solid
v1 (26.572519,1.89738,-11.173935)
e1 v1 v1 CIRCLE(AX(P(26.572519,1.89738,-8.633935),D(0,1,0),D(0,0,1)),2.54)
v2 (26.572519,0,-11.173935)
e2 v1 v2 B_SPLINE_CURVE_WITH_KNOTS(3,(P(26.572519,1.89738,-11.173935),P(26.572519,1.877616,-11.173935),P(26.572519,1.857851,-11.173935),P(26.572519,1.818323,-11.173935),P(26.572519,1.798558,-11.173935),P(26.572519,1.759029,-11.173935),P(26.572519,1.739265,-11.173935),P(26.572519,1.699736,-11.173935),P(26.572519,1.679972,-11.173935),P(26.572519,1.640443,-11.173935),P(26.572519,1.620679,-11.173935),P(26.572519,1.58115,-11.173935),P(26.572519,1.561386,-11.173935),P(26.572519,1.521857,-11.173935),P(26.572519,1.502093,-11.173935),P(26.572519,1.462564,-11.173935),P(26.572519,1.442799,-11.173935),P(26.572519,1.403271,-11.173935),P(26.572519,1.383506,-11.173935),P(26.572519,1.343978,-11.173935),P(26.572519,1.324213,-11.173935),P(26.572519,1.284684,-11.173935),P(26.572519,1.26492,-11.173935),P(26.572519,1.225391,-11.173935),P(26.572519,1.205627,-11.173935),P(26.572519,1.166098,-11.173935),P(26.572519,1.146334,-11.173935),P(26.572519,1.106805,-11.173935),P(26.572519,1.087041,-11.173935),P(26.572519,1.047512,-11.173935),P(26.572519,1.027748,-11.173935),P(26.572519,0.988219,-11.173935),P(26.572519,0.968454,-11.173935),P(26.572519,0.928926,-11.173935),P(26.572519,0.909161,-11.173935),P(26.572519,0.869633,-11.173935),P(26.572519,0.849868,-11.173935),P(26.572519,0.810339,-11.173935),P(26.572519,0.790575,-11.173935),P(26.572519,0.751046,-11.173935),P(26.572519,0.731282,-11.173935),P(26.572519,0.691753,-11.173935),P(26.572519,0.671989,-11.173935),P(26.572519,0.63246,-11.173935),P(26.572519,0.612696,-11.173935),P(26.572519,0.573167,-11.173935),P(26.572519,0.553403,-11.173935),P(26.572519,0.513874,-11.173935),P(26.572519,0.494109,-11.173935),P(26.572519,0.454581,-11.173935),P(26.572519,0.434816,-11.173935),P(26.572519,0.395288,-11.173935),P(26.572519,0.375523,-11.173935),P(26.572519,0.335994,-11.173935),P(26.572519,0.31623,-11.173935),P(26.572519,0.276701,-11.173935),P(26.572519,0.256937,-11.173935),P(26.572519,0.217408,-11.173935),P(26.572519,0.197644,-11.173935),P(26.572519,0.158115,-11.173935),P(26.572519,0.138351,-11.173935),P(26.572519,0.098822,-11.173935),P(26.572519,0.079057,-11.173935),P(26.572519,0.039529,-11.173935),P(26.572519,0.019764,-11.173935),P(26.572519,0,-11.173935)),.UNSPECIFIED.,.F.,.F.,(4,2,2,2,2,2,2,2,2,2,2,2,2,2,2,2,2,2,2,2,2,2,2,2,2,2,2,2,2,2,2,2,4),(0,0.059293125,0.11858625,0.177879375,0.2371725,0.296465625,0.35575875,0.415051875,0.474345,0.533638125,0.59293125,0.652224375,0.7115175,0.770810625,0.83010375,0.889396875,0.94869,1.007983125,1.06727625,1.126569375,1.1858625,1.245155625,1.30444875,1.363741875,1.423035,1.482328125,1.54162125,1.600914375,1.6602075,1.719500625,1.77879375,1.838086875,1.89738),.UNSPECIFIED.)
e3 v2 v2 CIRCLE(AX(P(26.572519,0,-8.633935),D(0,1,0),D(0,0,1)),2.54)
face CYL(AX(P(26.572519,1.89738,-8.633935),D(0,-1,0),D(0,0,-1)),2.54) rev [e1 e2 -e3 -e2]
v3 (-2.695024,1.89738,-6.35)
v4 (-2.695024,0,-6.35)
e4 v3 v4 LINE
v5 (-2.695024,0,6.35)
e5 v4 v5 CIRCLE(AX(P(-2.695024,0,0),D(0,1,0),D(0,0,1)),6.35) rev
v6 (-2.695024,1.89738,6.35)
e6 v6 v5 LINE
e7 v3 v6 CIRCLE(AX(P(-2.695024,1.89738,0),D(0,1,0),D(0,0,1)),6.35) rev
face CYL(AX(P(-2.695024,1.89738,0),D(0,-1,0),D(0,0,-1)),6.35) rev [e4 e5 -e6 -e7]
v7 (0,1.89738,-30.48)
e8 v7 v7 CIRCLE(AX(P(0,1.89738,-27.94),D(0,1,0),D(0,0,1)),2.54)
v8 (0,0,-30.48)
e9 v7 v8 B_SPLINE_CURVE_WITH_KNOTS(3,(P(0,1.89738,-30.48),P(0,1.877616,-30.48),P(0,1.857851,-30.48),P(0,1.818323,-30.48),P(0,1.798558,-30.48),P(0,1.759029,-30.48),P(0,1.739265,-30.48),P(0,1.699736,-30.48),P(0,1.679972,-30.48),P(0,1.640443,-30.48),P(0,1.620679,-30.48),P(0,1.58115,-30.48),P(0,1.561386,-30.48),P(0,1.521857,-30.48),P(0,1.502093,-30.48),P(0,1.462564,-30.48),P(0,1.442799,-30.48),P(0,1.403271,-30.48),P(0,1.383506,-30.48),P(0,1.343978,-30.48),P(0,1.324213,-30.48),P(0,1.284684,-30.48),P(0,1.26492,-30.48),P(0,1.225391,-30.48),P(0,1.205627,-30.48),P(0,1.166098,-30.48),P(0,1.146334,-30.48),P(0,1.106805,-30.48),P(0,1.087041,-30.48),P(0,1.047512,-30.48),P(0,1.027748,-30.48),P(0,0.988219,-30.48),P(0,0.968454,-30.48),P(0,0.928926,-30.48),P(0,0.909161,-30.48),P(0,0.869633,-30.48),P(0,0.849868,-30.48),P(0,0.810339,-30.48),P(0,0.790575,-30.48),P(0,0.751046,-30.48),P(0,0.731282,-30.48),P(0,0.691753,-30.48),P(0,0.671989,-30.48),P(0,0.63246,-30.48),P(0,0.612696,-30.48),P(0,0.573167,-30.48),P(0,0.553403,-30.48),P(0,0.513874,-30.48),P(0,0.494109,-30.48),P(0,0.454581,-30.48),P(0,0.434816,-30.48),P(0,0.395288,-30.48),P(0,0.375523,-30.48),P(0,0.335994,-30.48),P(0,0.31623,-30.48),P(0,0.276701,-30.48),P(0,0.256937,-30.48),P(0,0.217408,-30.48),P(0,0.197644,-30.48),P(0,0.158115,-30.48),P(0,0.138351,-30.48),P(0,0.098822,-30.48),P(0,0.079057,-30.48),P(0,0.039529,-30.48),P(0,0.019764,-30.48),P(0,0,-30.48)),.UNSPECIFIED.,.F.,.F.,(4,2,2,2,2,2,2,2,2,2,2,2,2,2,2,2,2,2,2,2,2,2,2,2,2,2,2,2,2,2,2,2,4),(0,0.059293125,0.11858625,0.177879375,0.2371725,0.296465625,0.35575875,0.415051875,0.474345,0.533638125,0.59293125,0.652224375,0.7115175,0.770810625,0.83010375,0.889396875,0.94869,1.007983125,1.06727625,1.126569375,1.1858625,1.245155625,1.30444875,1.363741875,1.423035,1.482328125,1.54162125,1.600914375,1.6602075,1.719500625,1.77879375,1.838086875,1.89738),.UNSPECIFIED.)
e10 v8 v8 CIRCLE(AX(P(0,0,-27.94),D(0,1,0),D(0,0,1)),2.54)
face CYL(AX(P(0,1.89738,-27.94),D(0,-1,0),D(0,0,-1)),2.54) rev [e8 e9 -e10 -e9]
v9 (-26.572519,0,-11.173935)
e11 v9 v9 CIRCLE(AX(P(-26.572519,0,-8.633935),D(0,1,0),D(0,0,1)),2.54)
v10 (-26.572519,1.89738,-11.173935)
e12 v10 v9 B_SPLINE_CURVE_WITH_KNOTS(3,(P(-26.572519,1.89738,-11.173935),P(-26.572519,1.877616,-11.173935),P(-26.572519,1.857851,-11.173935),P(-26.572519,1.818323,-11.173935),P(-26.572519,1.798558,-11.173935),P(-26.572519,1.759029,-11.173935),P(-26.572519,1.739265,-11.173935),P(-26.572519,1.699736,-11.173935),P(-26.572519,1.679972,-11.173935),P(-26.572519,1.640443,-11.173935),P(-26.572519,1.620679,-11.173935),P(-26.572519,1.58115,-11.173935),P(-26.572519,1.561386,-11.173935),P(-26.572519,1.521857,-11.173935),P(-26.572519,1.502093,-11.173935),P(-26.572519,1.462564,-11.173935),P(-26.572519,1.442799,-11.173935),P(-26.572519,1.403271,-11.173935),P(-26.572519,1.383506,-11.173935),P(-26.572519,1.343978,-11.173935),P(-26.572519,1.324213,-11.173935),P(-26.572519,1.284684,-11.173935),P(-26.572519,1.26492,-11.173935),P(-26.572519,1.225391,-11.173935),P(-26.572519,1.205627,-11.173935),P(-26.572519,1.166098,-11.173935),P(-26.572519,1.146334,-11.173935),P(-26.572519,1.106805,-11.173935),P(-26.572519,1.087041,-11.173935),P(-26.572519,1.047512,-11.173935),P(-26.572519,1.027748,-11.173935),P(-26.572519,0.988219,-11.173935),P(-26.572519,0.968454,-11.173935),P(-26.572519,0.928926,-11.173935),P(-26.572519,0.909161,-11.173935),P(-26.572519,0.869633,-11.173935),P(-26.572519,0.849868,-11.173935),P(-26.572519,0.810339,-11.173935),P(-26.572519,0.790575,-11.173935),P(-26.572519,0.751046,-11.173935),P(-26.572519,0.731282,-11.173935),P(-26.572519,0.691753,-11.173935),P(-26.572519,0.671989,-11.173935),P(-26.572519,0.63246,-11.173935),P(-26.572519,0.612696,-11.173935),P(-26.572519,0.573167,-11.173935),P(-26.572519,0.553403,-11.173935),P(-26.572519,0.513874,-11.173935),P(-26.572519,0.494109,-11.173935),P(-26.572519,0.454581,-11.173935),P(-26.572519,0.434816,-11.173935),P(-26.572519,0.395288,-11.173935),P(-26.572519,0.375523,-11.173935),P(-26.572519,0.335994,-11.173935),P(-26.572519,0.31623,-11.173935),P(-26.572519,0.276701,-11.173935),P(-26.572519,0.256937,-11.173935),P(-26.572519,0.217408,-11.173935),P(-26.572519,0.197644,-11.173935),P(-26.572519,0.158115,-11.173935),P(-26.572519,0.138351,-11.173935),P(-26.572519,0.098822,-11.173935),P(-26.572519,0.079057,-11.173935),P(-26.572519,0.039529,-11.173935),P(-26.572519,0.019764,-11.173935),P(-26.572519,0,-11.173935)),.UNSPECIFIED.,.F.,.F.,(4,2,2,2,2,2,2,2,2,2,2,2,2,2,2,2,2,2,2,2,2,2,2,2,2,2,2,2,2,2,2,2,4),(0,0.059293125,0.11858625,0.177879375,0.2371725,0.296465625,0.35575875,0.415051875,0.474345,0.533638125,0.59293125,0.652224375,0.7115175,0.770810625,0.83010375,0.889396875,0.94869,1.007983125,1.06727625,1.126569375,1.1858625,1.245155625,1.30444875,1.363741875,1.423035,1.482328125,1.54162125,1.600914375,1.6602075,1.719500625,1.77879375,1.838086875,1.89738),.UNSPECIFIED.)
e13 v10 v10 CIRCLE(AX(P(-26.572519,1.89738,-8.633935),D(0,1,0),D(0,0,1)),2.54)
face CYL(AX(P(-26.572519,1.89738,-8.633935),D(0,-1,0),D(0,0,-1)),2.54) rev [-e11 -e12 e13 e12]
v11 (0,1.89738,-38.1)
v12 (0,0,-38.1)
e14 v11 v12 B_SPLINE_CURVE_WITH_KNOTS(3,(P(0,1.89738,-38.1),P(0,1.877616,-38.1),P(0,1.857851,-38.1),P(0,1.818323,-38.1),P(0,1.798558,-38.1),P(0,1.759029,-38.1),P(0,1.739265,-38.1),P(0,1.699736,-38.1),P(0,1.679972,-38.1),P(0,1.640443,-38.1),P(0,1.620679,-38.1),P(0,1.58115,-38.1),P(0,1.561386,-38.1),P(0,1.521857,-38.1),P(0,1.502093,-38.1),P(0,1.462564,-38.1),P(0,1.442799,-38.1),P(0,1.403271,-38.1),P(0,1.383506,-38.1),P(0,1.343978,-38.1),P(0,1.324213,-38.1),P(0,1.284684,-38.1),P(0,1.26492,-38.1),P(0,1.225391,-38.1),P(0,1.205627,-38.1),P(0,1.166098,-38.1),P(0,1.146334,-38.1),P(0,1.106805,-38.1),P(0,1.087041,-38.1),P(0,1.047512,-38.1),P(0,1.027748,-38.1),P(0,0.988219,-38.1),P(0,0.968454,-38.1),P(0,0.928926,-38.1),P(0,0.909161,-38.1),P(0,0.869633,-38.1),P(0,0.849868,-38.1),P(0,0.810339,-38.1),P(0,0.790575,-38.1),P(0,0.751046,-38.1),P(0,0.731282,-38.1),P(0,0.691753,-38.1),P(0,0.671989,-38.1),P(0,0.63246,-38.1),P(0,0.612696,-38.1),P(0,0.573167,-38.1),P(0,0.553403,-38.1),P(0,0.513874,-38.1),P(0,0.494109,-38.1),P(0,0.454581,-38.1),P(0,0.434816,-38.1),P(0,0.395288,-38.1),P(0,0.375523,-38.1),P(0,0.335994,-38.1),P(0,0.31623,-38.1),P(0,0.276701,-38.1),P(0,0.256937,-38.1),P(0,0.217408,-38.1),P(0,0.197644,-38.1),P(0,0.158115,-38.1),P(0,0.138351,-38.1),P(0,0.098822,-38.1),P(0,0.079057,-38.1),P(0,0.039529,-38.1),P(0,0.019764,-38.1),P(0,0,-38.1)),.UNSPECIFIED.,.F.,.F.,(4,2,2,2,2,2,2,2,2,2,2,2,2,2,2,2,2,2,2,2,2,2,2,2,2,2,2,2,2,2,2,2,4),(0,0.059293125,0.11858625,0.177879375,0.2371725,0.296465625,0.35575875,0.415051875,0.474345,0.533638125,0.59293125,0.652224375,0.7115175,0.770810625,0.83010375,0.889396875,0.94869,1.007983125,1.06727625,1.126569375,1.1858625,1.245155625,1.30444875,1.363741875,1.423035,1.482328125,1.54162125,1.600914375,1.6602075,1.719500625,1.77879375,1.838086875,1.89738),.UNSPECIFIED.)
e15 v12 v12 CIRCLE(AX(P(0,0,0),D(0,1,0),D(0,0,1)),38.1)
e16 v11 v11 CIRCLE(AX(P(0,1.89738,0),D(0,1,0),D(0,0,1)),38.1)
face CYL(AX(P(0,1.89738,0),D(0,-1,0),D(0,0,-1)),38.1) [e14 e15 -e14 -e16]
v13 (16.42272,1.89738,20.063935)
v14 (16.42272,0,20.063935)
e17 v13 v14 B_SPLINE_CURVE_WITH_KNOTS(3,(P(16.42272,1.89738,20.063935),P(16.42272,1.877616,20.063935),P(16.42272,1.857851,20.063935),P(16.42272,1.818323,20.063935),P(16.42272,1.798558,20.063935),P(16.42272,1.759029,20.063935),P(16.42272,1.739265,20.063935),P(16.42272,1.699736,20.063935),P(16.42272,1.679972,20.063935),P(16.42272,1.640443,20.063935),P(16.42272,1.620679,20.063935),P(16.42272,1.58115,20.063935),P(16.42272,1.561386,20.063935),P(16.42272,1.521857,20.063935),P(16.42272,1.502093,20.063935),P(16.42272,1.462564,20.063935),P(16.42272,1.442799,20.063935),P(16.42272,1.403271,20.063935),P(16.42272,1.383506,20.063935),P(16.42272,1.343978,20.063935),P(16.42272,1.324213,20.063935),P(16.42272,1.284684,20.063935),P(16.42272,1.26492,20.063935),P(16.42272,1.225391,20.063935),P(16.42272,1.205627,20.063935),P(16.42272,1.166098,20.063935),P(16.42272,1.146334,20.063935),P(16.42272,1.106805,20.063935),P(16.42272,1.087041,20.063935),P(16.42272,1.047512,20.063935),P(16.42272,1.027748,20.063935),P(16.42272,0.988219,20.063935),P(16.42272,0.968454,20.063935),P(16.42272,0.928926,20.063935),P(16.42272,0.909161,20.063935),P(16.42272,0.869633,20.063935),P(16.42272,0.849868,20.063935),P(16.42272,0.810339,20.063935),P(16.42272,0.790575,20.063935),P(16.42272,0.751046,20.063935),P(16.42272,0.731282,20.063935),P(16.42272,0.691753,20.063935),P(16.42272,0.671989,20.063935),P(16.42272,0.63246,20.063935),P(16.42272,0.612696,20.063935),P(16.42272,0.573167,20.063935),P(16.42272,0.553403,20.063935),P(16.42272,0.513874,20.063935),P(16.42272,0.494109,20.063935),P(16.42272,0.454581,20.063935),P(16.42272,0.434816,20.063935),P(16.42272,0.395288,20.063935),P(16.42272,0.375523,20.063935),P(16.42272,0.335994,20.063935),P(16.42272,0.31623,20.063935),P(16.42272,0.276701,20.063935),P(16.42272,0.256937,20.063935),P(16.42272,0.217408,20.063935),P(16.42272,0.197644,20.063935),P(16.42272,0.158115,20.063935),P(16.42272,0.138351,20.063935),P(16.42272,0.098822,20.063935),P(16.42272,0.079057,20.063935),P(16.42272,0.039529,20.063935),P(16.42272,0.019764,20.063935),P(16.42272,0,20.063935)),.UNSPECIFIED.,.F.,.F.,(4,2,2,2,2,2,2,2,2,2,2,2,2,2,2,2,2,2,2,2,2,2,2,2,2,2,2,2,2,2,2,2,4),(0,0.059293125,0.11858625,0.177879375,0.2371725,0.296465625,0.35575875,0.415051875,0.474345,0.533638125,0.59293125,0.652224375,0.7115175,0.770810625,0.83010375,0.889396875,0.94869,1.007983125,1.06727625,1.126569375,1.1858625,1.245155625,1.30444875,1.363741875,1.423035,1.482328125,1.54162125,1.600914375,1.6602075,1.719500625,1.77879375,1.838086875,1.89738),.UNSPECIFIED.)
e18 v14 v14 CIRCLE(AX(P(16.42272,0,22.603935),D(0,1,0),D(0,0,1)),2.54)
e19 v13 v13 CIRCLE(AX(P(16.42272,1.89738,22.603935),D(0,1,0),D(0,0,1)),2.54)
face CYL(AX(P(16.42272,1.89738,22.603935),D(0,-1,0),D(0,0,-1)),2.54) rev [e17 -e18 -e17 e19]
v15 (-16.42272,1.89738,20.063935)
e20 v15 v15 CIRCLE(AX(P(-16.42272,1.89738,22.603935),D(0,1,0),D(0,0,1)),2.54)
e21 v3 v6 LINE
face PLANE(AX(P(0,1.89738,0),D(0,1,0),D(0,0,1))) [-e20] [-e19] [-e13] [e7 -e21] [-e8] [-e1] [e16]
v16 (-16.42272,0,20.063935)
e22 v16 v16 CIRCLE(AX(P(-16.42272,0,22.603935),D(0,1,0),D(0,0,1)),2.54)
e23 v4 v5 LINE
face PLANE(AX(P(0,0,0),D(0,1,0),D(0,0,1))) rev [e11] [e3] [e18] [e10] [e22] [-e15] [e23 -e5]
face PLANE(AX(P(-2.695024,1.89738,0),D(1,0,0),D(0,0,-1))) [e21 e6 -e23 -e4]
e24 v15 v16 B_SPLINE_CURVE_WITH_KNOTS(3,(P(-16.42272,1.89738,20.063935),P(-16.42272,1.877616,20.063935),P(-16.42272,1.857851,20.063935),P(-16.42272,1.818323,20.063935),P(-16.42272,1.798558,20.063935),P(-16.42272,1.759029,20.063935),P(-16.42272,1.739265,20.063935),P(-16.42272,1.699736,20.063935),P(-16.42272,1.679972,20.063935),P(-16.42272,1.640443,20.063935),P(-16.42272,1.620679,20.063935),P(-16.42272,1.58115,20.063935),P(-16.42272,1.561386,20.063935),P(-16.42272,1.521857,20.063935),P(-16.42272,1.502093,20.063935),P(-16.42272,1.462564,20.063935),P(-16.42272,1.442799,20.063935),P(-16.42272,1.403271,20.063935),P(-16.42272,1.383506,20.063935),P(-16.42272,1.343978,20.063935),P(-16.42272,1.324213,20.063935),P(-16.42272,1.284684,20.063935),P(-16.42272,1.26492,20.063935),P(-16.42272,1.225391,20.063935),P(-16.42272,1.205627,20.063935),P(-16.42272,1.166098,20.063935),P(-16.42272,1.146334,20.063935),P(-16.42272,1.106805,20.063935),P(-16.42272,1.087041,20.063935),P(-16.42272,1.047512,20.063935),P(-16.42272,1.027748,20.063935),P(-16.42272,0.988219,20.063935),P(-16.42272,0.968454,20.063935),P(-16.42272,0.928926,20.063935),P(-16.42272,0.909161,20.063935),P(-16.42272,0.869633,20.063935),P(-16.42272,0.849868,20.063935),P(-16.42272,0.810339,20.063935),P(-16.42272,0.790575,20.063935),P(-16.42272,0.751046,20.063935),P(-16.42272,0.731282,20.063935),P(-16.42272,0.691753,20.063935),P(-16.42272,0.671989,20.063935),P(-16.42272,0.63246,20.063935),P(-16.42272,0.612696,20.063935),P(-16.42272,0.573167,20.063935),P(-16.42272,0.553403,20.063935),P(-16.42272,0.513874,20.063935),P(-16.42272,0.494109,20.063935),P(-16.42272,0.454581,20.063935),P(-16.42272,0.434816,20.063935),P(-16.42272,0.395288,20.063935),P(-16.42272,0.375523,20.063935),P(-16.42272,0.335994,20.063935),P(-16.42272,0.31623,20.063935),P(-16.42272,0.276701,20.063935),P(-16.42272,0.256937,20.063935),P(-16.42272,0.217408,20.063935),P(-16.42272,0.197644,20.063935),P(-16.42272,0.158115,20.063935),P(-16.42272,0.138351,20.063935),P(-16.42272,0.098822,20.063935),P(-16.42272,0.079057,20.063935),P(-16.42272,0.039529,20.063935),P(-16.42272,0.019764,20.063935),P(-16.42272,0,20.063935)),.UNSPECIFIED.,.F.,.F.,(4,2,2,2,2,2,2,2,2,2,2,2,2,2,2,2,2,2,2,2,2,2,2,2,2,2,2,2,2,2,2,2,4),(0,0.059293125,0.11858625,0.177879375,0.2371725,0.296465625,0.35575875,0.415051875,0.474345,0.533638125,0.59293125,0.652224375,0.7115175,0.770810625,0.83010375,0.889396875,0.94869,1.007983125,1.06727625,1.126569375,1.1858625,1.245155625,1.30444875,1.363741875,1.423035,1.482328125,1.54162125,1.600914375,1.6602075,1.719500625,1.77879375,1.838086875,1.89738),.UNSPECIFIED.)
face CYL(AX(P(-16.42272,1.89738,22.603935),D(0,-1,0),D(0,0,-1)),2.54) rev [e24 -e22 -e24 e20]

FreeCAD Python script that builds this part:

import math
import FreeCAD as App
import Part
import Sketcher
from FreeCAD import Vector
Q = App.Units.Quantity

doc = App.newDocument("Part")
params = doc.addObject("Spreadsheet::Sheet", "Params")
for row, (alias, value) in enumerate([
    ("sketch1_diameter", "3 in"),
    ("sketch1_diameter2", "0.2 in"),
    ("sketch1_radius", "0.25 in"),
    ("pad1_length", "0.0747 in"),
], start=1):
    params.set(f"A{row}", alias)
    params.set(f"B{row}", "=" + value)
    params.setAlias(f"B{row}", alias)

body = doc.addObject("PartDesign::Body", "Body")

# Sketch on XZ plane
sketch1 = body.newObject("Sketcher::SketchObject", "Sketch")
sketch1.AttachmentSupport = (doc.getObject("XZ_Plane"), [""])
sketch1.MapMode = "FlatFace"
sketch1.addGeometry(Part.Circle(Vector(0, 0, 0), Vector(0, 0, 1), 38.1), False)
sketch1.addGeometry(Part.Circle(Vector(16.42272, 22.603935, 0), Vector(0, 0, 1), 2.54), False)
sketch1.addGeometry(Part.LineSegment(Vector(-2.695024, 6.35, 0), Vector(-2.695024, -6.35, 0)), False)
sketch1.addGeometry(Part.ArcOfCircle(Part.Circle(Vector(-2.695024, 0, 0), Vector(0, 0, 1), 6.35), math.radians(-90), math.radians(90)), False)
sketch1.addGeometry(Part.Circle(Vector(26.572519, -8.633935, 0), Vector(0, 0, 1), 2.54), False)
sketch1.addGeometry(Part.Circle(Vector(-16.42272, 22.603935, 0), Vector(0, 0, 1), 2.54), False)
sketch1.addGeometry(Part.Circle(Vector(0, -27.94, 0), Vector(0, 0, 1), 2.54), False)
sketch1.addGeometry(Part.Circle(Vector(-26.572519, -8.633935, 0), Vector(0, 0, 1), 2.54), False)
sketch1.addConstraint(Sketcher.Constraint("Coincident", 2, 1, 3, 2))
sketch1.addConstraint(Sketcher.Constraint("Coincident", 3, 1, 2, 2))
sketch1.addConstraint(Sketcher.Constraint("Vertical", 2))
sketch1.addConstraint(Sketcher.Constraint("Coincident", 0, 3, -1, 1))
sketch1.addConstraint(Sketcher.Constraint("Equal", 1, 4))
sketch1.addConstraint(Sketcher.Constraint("Equal", 4, 5))
sketch1.addConstraint(Sketcher.Constraint("Equal", 5, 6))
sketch1.addConstraint(Sketcher.Constraint("Equal", 6, 7))
sketch1.addConstraint(Sketcher.Constraint("Symmetric", 1, 3, 5, 3, -2))
sketch1.addConstraint(Sketcher.Constraint("Symmetric", 4, 3, 7, 3, -2))
sketch1.addConstraint(Sketcher.Constraint("PointOnObject", 3, 3, -1))
sketch1.addConstraint(Sketcher.Constraint("PointOnObject", 6, 3, -2))
sketch1.addConstraint(Sketcher.Constraint("Vertical", 3, 3, 2, 1))
sketch1.addConstraint(Sketcher.Constraint("Diameter", 0, Q("3 in")))
sketch1.addConstraint(Sketcher.Constraint("Diameter", 1, Q("0.2 in")))
sketch1.addConstraint(Sketcher.Constraint("Radius", 3, Q("0.25 in")))
sketch1.addConstraint(Sketcher.Constraint("DistanceY", 6, 3, -1, 1, Q("1.1 in")))
sketch1.addConstraint(Sketcher.Constraint("DistanceX", 1, 3, 4, 3, Q("10.149799 mm")))
sketch1.addConstraint(Sketcher.Constraint("DistanceX", -1, 1, 1, 3, Q("16.42272 mm")))
sketch1.addConstraint(Sketcher.Constraint("DistanceY", 4, 3, 1, 3, Q("31.23787 mm")))
sketch1.addConstraint(Sketcher.Constraint("DistanceY", -1, 1, 1, 3, Q("22.603935 mm")))
sketch1.addConstraint(Sketcher.Constraint("DistanceX", 3, 3, -1, 1, Q("2.695024 mm")))
sketch1.setExpression("Constraints[13]", "Params.sketch1_diameter")
sketch1.setExpression("Constraints[14]", "Params.sketch1_diameter2")
sketch1.setExpression("Constraints[15]", "Params.sketch1_radius")
pad1 = body.newObject("PartDesign::Pad", "Pad")
pad1.Profile = sketch1
pad1.setExpression("Length", "Params.pad1_length")
pad1.Reversed = True

doc.recompute()
